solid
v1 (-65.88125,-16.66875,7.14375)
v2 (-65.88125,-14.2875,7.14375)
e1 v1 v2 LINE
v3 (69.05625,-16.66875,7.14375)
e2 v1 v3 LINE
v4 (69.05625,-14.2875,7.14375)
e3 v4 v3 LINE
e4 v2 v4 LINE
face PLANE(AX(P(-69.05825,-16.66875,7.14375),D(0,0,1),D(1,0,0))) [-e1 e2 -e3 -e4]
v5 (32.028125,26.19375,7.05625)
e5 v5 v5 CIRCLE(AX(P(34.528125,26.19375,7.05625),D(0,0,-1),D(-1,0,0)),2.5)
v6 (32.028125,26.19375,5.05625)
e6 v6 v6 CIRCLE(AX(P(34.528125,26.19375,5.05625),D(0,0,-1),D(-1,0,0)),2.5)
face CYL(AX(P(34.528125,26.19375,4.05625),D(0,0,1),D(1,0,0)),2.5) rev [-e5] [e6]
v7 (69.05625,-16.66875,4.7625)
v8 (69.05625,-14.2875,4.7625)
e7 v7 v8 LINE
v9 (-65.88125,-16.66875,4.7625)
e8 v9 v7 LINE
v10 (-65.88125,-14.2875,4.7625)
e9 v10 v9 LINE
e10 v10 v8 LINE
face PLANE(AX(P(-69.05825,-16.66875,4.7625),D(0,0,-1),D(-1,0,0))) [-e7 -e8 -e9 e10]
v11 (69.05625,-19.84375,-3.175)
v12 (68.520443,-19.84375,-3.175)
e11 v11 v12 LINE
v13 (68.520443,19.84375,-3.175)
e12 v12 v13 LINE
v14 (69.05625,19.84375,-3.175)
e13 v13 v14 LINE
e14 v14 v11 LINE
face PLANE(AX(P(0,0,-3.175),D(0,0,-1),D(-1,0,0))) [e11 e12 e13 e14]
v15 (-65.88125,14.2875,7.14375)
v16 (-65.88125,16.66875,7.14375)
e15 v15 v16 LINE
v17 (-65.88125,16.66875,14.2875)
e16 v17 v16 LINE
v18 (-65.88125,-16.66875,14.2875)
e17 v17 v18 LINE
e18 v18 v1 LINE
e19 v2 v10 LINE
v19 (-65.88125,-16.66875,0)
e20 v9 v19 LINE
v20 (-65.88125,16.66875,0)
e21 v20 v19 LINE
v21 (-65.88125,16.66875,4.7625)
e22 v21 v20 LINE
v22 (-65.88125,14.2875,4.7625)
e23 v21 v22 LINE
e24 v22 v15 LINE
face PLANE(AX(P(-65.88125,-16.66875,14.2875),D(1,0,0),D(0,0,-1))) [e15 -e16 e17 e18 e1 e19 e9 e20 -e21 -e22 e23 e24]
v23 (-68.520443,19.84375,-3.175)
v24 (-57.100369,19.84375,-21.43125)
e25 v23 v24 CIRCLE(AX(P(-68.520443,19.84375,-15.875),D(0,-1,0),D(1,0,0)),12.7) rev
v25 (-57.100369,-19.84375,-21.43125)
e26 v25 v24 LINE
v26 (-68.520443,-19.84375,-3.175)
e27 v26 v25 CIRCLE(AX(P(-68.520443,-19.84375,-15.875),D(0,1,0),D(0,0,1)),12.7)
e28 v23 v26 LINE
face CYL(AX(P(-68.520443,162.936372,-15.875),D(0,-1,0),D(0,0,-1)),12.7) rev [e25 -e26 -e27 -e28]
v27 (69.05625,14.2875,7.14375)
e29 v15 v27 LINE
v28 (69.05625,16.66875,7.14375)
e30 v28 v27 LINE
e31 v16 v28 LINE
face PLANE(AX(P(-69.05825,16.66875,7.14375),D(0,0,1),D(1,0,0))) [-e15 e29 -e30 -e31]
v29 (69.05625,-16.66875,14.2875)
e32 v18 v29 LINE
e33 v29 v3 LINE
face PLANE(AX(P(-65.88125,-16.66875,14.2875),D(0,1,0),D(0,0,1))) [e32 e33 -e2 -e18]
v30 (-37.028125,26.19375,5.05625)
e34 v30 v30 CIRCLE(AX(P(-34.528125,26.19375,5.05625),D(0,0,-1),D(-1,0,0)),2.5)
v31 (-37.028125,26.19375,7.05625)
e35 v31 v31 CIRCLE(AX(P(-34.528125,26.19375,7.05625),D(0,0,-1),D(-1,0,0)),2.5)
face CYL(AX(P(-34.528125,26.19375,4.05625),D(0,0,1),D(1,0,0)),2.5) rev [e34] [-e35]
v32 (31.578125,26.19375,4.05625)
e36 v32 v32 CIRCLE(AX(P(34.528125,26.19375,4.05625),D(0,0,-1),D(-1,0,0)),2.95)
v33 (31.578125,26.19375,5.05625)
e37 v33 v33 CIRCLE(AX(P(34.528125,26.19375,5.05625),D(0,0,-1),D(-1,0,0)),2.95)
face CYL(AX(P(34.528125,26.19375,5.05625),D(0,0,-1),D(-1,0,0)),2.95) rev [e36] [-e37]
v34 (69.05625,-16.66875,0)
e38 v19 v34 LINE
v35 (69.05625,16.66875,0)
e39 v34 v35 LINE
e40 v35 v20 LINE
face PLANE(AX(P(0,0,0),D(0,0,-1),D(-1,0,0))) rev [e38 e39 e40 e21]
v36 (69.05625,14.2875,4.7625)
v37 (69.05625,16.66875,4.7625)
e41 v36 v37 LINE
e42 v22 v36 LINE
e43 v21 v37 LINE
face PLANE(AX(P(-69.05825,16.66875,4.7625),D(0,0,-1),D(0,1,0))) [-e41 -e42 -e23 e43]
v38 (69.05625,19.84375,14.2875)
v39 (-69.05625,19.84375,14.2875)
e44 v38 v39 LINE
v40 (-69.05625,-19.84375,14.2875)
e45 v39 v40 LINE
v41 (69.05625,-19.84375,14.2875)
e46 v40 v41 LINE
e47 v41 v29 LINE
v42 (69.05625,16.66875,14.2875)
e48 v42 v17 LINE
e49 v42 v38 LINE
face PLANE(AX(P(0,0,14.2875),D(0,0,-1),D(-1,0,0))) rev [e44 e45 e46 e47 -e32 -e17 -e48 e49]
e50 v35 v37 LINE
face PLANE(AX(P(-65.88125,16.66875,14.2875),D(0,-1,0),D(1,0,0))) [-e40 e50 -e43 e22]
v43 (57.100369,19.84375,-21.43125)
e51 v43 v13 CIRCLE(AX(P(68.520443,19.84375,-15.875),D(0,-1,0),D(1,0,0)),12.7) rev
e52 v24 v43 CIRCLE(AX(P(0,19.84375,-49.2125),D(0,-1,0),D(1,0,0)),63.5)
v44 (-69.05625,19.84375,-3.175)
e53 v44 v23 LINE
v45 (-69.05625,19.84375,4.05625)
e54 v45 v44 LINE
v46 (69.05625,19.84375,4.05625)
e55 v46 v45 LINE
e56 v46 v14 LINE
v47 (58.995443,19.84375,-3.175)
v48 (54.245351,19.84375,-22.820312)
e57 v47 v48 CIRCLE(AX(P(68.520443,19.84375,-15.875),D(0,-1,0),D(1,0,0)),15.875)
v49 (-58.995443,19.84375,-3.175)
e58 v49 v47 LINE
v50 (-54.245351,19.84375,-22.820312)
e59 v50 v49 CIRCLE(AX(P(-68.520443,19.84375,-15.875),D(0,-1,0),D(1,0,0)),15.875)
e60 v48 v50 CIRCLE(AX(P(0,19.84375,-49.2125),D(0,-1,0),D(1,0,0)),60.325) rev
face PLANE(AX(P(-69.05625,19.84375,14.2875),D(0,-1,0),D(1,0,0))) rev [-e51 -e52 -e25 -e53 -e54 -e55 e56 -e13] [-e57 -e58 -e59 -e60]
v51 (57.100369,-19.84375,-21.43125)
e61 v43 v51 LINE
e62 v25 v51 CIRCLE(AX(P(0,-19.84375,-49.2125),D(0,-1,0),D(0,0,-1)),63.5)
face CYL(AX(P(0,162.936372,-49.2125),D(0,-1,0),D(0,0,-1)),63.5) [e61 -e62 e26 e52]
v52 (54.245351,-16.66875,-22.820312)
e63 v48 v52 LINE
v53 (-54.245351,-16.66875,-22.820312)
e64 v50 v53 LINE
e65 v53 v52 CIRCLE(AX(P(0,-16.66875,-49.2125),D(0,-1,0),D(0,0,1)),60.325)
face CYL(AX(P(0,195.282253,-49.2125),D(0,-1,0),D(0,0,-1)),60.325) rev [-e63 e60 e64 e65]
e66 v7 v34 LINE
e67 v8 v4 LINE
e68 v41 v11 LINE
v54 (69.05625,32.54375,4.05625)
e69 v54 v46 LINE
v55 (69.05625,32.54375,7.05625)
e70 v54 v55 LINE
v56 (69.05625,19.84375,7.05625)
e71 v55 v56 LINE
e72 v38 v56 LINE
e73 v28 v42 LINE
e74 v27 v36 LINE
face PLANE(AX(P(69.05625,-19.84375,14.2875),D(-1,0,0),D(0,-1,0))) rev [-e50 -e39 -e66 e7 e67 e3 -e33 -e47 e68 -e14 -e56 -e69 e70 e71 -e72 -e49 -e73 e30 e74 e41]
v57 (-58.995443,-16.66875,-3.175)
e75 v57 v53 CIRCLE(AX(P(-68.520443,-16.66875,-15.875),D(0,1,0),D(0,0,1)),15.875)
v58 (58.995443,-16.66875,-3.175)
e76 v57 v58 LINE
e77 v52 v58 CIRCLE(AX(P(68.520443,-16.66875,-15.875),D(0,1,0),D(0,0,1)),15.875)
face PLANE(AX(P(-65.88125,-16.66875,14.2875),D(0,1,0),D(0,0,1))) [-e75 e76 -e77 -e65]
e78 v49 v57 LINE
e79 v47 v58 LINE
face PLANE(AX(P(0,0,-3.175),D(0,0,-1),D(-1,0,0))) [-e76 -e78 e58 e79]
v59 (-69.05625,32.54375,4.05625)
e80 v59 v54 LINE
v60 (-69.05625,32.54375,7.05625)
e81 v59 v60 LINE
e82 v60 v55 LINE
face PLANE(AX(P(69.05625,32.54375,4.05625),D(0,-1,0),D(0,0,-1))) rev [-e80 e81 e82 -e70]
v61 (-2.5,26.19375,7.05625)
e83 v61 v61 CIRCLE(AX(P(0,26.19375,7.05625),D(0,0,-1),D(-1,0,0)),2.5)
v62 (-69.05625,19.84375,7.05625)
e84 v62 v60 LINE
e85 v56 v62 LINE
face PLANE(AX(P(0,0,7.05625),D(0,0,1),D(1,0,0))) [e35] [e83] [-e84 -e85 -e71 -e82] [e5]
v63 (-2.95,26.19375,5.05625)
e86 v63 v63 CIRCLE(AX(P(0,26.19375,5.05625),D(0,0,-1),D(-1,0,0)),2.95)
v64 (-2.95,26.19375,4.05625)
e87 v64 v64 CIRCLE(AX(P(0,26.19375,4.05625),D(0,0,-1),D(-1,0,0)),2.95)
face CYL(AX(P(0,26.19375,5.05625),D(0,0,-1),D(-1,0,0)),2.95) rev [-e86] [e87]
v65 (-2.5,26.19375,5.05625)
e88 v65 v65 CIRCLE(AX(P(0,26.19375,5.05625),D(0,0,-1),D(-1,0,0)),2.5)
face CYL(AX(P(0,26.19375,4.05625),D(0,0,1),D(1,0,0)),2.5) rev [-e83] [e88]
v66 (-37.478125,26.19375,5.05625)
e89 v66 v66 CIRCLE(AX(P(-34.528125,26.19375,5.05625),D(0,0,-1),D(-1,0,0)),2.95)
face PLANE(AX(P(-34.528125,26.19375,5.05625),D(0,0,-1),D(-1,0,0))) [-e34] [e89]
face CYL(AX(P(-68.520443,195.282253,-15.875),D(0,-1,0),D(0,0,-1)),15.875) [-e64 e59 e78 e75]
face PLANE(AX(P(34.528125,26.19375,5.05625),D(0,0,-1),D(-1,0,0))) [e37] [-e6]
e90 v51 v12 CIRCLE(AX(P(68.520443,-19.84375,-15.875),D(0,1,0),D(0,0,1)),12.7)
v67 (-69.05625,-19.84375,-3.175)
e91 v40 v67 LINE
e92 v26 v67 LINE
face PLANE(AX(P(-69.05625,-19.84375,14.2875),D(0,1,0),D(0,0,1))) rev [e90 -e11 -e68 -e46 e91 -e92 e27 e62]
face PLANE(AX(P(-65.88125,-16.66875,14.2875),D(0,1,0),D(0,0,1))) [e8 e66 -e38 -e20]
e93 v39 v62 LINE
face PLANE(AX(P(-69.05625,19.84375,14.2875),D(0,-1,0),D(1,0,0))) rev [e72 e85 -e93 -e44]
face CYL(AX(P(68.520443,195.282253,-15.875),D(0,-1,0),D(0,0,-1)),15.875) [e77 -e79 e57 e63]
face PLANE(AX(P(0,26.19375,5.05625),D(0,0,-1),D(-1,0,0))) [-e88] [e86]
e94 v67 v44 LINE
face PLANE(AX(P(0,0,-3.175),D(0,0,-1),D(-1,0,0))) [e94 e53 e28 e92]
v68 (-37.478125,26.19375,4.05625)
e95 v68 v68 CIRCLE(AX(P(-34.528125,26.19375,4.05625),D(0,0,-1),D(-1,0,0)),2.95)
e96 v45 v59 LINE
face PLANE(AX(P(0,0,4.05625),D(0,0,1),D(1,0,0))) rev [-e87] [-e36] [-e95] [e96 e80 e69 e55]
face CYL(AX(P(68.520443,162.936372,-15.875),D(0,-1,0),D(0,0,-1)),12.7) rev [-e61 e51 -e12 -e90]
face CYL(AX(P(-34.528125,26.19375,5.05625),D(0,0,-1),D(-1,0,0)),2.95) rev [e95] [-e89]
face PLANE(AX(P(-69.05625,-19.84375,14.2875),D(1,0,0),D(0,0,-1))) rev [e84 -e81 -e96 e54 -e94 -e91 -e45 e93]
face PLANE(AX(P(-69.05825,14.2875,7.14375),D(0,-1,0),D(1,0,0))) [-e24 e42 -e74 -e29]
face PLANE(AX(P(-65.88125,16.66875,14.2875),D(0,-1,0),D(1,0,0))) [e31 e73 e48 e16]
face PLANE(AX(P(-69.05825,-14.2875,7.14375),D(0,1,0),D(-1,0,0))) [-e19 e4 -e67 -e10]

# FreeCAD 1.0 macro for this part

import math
import FreeCAD as App
import Part
import Sketcher
from FreeCAD import Vector
Q = App.Units.Quantity


def edges_at(feature, points):
    """Names of the edges that pass closest to the given points."""
    edges = feature.Shape.Edges
    near = lambda p: min(range(len(edges)), key=lambda i: edges[i].distToShape(Part.Vertex(*p))[0])
    return sorted({f"Edge{near(p) + 1}" for p in points})


def add_polygon(sketch, points):
    """Adds a closed chain of lines whose ends are joined by coincident constraints."""
    first, n = sketch.GeometryCount, len(points)
    for a, b in zip(points, points[1:] + points[:1]):
        sketch.addGeometry(Part.LineSegment(App.Vector(*a, 0), App.Vector(*b, 0)), False)
    for i in range(n):
        sketch.addConstraint(Sketcher.Constraint("Coincident", first + i, 2, first + (i + 1) % n, 1))

doc = App.newDocument("Part")
body = doc.addObject("PartDesign::Body", "Body")

# Sketch on XY plane
sketch1 = body.newObject("Sketcher::SketchObject", "Sketch")
sketch1.AttachmentSupport = (doc.getObject("XY_Plane"), [""])
sketch1.MapMode = "FlatFace"
add_polygon(sketch1, [(-69, 20), (-69, -20), (69, -20), (69, 20)])  # lines 0-3
add_polygon(sketch1, [(66, -17), (-66, -17), (-66, 17), (66, 17)])  # lines 4-7
sketch1.addConstraint([
    Sketcher.Constraint("Vertical", 0),
    Sketcher.Constraint("Horizontal", 1),
    Sketcher.Constraint("Vertical", 2),
    Sketcher.Constraint("Horizontal", 3),
    Sketcher.Constraint("Horizontal", 4),
    Sketcher.Constraint("Vertical", 5),
    Sketcher.Constraint("Horizontal", 6),
    Sketcher.Constraint("Vertical", 7),
    Sketcher.Constraint("Symmetric", 0, 2, 2, 2, -1, 1),
    Sketcher.Constraint("Symmetric", 4, 2, 6, 2, -1, 1),
    Sketcher.Constraint("DistanceX", 1, 1, 1, 2, Q("5.4375 in")),
    Sketcher.Constraint("DistanceX", 4, 2, 4, 1, Q("5.1875 in")),
    Sketcher.Constraint("DistanceY", 0, 2, 0, 1, Q("1.5625 in")),
    Sketcher.Constraint("DistanceY", 5, 1, 5, 2, Q("1.3125 in")),
])
pad1 = body.newObject("PartDesign::Pad", "Pad")
pad1.Profile = sketch1
pad1.Length = Q("0.5625 in")

# Sketch on XY plane
sketch2 = body.newObject("Sketcher::SketchObject", "Sketch001")
sketch2.AttachmentSupport = (doc.getObject("XY_Plane"), [""])
sketch2.MapMode = "FlatFace"
add_polygon(sketch2, [(69, 20), (69, -20), (-69, -20), (-69, 20)])  # lines 0-3
sketch2.addConstraint([
    Sketcher.Constraint("Vertical", 0),
    Sketcher.Constraint("Horizontal", 1),
    Sketcher.Constraint("Vertical", 2),
    Sketcher.Constraint("Horizontal", 3),
    Sketcher.Constraint("Symmetric", 0, 2, 2, 2, -1, 1),
    Sketcher.Constraint("DistanceX", 1, 2, 1, 1, Q("5.4375 in")),
    Sketcher.Constraint("DistanceY", 0, 2, 0, 1, Q("1.5625 in")),
])
pad2 = body.newObject("PartDesign::Pad", "Pad001")
pad2.Profile = sketch2
pad2.Length = Q("0.125 in")
pad2.Reversed = True

# Sketch on YZ plane
sketch3 = body.newObject("Sketcher::SketchObject", "Sketch002")
sketch3.AttachmentSupport = (doc.getObject("YZ_Plane"), [""])
sketch3.MapMode = "FlatFace"
sketch3.AttachmentOffset = App.Placement(Vector(0, 0, 2.71875 * 25.4), App.Rotation())
add_polygon(sketch3, [(17, 14), (-17, 14), (-17, 0), (17, 0)])  # lines 0-3
sketch3.addConstraint([
    Sketcher.Constraint("Horizontal", 0),
    Sketcher.Constraint("Vertical", 1),
    Sketcher.Constraint("Horizontal", 2),
    Sketcher.Constraint("Vertical", 3),
    Sketcher.Constraint("Symmetric", 1, 2, 2, 2, -1, 1),
    Sketcher.Constraint("DistanceX", 0, 2, 0, 1, Q("1.3125 in")),
    Sketcher.Constraint("DistanceY", 1, 2, 1, 1, Q("0.5625 in")),
])
pocket1 = body.newObject("PartDesign::Pocket", "Pocket")
pocket1.Profile = sketch3
pocket1.Type = "UpToFirst"

# Sketch on YZ plane
sketch4 = body.newObject("Sketcher::SketchObject", "Sketch003")
sketch4.AttachmentSupport = (doc.getObject("YZ_Plane"), [""])
sketch4.MapMode = "FlatFace"
sketch4.AttachmentOffset = App.Placement(Vector(0, 0, 2.71875 * 25.4), App.Rotation())
add_polygon(sketch4, [(-14.3, 7.1), (-16.7, 7.1), (-16.7, 4.8), (-14.3, 4.8)])  # lines 0-3
sketch4.addConstraint([
    Sketcher.Constraint("Horizontal", 0),
    Sketcher.Constraint("Vertical", 1),
    Sketcher.Constraint("Horizontal", 2),
    Sketcher.Constraint("Vertical", 3),
    Sketcher.Constraint("Equal", 2, 1),
    Sketcher.Constraint("DistanceX", 0, 2, 0, 1, Q("0.09375 in")),
    Sketcher.Constraint("DistanceX", 0, 2, -1, 1, Q("0.65625 in")),
    Sketcher.Constraint("DistanceY", -1, 1, 0, 2, Q("0.28125 in")),
])
pad3 = body.newObject("PartDesign::Pad", "Pad002")
pad3.Profile = sketch4
pad3.Type = "UpToFirst"
pad3.Reversed = True

# Sketch on YZ plane
sketch5 = body.newObject("Sketcher::SketchObject", "Sketch004")
sketch5.AttachmentSupport = (doc.getObject("YZ_Plane"), [""])
sketch5.MapMode = "FlatFace"
sketch5.AttachmentOffset = App.Placement(Vector(0, 0, 2.71875 * 25.4), App.Rotation())
add_polygon(sketch5, [(16.7, 7.1), (14.3, 7.1), (14.3, 4.8), (16.7, 4.8)])  # lines 0-3
sketch5.addConstraint([
    Sketcher.Constraint("Horizontal", 0),
    Sketcher.Constraint("Vertical", 1),
    Sketcher.Constraint("Horizontal", 2),
    Sketcher.Constraint("Vertical", 3),
    Sketcher.Constraint("Equal", 2, 1),
    Sketcher.Constraint("DistanceX", 0, 2, 0, 1, Q("0.09375 in")),
    Sketcher.Constraint("DistanceX", -1, 1, 0, 2, Q("0.5625 in")),
    Sketcher.Constraint("DistanceY", -1, 1, 0, 2, Q("0.28125 in")),
])
pad4 = body.newObject("PartDesign::Pad", "Pad003")
pad4.Profile = sketch5
pad4.Type = "UpToFirst"
pad4.Reversed = True

# Sketch on XY plane
sketch6 = body.newObject("Sketcher::SketchObject", "Sketch005")
sketch6.AttachmentSupport = (doc.getObject("XY_Plane"), [""])
sketch6.MapMode = "FlatFace"
sketch6.AttachmentOffset = App.Placement(Vector(0, 0, 0.21875 * 25.4), App.Rotation())
add_polygon(sketch6, [(69.1, 32.5), (69.1, 19.8), (-69.1, 19.8), (-69.1, 32.5)])  # lines 0-3
sketch6.addGeometry(Part.Circle(Vector(34.5, 26.2, 0), Vector(0, 0, 1), 2.5), False)  # 4
sketch6.addGeometry(Part.Circle(Vector(0, 26.2, 0), Vector(0, 0, 1), 2.5), False)  # 5
sketch6.addGeometry(Part.Circle(Vector(-34.5, 26.2, 0), Vector(0, 0, 1), 2.5), False)  # 6
sketch6.addConstraint([
    Sketcher.Constraint("Vertical", 0),
    Sketcher.Constraint("Horizontal", 1),
    Sketcher.Constraint("Vertical", 2),
    Sketcher.Constraint("Horizontal", 3),
    Sketcher.Constraint("Equal", 4, 5),
    Sketcher.Constraint("Equal", 5, 6),
    Sketcher.Constraint("Symmetric", 4, 3, 6, 3, -2),
    Sketcher.Constraint("PointOnObject", 5, 3, -2),
    Sketcher.Constraint("Horizontal", 4, 3, 5, 3),
    Sketcher.Constraint("DistanceY", 0, 2, 0, 1, Q("0.5 in")),
    Sketcher.Constraint("Diameter", 4, Q("5 mm")),
    Sketcher.Constraint("DistanceX", 1, 2, 1, 1, Q("5.4375 in")),
    Sketcher.Constraint("DistanceY", 0, 2, 4, 3, Q("0.25 in")),
    Sketcher.Constraint("DistanceX", -1, 1, 4, 3, Q("1.359375 in")),
    Sketcher.Constraint("DistanceY", -1, 1, 4, 3, Q("1.03125 in")),
    Sketcher.Constraint("DistanceX", -1, 1, 0, 2, Q("2.71875 in")),
])
pad5 = body.newObject("PartDesign::Pad", "Pad004")
pad5.Profile = sketch6
pad5.Length = 3
pad5.Midplane = True

# Sketch on XY plane
sketch7 = body.newObject("Sketcher::SketchObject", "Sketch006")
sketch7.AttachmentSupport = (doc.getObject("XY_Plane"), [""])
sketch7.MapMode = "FlatFace"
sketch7.AttachmentOffset = App.Placement(Vector(0, 0, 4.05625), App.Rotation())
sketch7.addGeometry([
    Part.Circle(Vector(34.5, 26.2, 0), Vector(0, 0, 1), 3),
    Part.Circle(Vector(0, 26.2, 0), Vector(0, 0, 1), 3),
    Part.Circle(Vector(-34.5, 26.2, 0), Vector(0, 0, 1), 3),
], False)
sketch7.addConstraint([
    Sketcher.Constraint("Equal", 0, 1),
    Sketcher.Constraint("Equal", 1, 2),
    Sketcher.Constraint("Symmetric", 0, 3, 2, 3, -2),
    Sketcher.Constraint("PointOnObject", 1, 3, -2),
    Sketcher.Constraint("Horizontal", 0, 3, 1, 3),
    Sketcher.Constraint("Diameter", 0, Q("5.9 mm")),
    Sketcher.Constraint("DistanceX", -1, 1, 0, 3, Q("1.359375 in")),
    Sketcher.Constraint("DistanceY", -1, 1, 0, 3, Q("1.03125 in")),
])
pocket2 = body.newObject("PartDesign::Pocket", "Pocket001")
pocket2.Profile = sketch7
pocket2.Length = 1
pocket2.Reversed = True

# Sketch on XZ plane
sketch8 = body.newObject("Sketcher::SketchObject", "Sketch007")
sketch8.AttachmentSupport = (doc.getObject("XZ_Plane"), [""])
sketch8.MapMode = "FlatFace"
sketch8.AttachmentOffset = App.Placement(Vector(0, 0, 0.78125 * 25.4), App.Rotation())
sketch8.addGeometry(Part.Circle(Vector(0, -49, 0), Vector(0, 0, 1), 64), False)
sketch8.addConstraint([
    Sketcher.Constraint("PointOnObject", 0, 3, -2),
    Sketcher.Constraint("Diameter", 0, Q("5 in")),
    Sketcher.Constraint("DistanceY", 0, 3, -1, 1, Q("1.9375 in")),
])
pad6 = body.newObject("PartDesign::Pad", "Pad005")
pad6.Profile = sketch8
pad6.Length = Q("0.125 in")
pad6.Reversed = True
doc.recompute()

fillet = body.newObject("PartDesign::Fillet", "Fillet")
fillet.Base = (pad6, edges_at(pad6, [(-43.736, -18.256, -3.175), (43.736, -18.256, -3.175)]))
fillet.Radius = Q("0.5 in")

# Sketch on XZ plane
sketch9 = body.newObject("Sketcher::SketchObject", "Sketch008")
sketch9.AttachmentSupport = (doc.getObject("XZ_Plane"), [""])
sketch9.MapMode = "FlatFace"
sketch9.AttachmentOffset = App.Placement(Vector(0, 0, 0.65625 * 25.4), App.Rotation())
sketch9.addGeometry([
    Part.LineSegment(Vector(-69, -3, 0), Vector(-59, -3, 0)),  # 0
    Part.ArcOfCircle(Part.Circle(Vector(-69, -16, 0), Vector(0, 0, 1), 16), math.radians(-26), math.radians(53)),  # 1
    Part.ArcOfCircle(Part.Circle(Vector(0, -49, 0), Vector(0, 0, 1), 60), math.radians(154), math.radians(386)),  # 2
    Part.ArcOfCircle(Part.Circle(Vector(69, -16, 0), Vector(0, 0, 1), 16), math.radians(127), math.radians(206)),  # 3
    Part.LineSegment(Vector(59, -3, 0), Vector(69, -3, 0)),  # 4
    Part.ArcOfCircle(Part.Circle(Vector(69, -16, 0), Vector(0, 0, 1), 13), math.radians(90), math.radians(206)),  # 5
    Part.ArcOfCircle(Part.Circle(Vector(0, -49, 0), Vector(0, 0, 1), 64), math.radians(154), math.radians(386)),  # 6
    Part.ArcOfCircle(Part.Circle(Vector(-69, -16, 0), Vector(0, 0, 1), 13), math.radians(-26), math.radians(90)),  # 7
], False)
sketch9.addConstraint([
    Sketcher.Constraint("Coincident", 0, 2, 1, 2),
    Sketcher.Constraint("Tangent", 1, 1, 2, 1),
    Sketcher.Constraint("Tangent", 2, 2, 3, 2),
    Sketcher.Constraint("Coincident", 3, 1, 4, 1),
    Sketcher.Constraint("Tangent", 4, 2, 5, 1),
    Sketcher.Constraint("Tangent", 5, 2, 6, 2),
    Sketcher.Constraint("Tangent", 6, 1, 7, 1),
    Sketcher.Constraint("Tangent", 7, 2, 0, 1),
    Sketcher.Constraint("Horizontal", 0),
    Sketcher.Constraint("Horizontal", 4),
    Sketcher.Constraint("Coincident", 5, 3, 3, 3),
    Sketcher.Constraint("Coincident", 6, 3, 2, 3),
    Sketcher.Constraint("Coincident", 7, 3, 1, 3),
    Sketcher.Constraint("Equal", 1, 3),
    Sketcher.Constraint("Symmetric", 1, 3, 3, 3, -2),
    Sketcher.Constraint("Radius", 5, Q("0.5 in")),
    Sketcher.Constraint("Radius", 6, Q("2.5 in")),
    Sketcher.Constraint("Radius", 1, Q("0.625 in")),
    Sketcher.Constraint("DistanceY", 1, 3, -1, 1, Q("0.625 in")),
    Sketcher.Constraint("DistanceY", 2, 3, -1, 1, Q("1.9375 in")),
])
pad7 = body.newObject("PartDesign::Pad", "Pad006")
pad7.Profile = sketch9
pad7.Length = Q("1.4375 in")
pad7.Reversed = True

doc.recompute()
